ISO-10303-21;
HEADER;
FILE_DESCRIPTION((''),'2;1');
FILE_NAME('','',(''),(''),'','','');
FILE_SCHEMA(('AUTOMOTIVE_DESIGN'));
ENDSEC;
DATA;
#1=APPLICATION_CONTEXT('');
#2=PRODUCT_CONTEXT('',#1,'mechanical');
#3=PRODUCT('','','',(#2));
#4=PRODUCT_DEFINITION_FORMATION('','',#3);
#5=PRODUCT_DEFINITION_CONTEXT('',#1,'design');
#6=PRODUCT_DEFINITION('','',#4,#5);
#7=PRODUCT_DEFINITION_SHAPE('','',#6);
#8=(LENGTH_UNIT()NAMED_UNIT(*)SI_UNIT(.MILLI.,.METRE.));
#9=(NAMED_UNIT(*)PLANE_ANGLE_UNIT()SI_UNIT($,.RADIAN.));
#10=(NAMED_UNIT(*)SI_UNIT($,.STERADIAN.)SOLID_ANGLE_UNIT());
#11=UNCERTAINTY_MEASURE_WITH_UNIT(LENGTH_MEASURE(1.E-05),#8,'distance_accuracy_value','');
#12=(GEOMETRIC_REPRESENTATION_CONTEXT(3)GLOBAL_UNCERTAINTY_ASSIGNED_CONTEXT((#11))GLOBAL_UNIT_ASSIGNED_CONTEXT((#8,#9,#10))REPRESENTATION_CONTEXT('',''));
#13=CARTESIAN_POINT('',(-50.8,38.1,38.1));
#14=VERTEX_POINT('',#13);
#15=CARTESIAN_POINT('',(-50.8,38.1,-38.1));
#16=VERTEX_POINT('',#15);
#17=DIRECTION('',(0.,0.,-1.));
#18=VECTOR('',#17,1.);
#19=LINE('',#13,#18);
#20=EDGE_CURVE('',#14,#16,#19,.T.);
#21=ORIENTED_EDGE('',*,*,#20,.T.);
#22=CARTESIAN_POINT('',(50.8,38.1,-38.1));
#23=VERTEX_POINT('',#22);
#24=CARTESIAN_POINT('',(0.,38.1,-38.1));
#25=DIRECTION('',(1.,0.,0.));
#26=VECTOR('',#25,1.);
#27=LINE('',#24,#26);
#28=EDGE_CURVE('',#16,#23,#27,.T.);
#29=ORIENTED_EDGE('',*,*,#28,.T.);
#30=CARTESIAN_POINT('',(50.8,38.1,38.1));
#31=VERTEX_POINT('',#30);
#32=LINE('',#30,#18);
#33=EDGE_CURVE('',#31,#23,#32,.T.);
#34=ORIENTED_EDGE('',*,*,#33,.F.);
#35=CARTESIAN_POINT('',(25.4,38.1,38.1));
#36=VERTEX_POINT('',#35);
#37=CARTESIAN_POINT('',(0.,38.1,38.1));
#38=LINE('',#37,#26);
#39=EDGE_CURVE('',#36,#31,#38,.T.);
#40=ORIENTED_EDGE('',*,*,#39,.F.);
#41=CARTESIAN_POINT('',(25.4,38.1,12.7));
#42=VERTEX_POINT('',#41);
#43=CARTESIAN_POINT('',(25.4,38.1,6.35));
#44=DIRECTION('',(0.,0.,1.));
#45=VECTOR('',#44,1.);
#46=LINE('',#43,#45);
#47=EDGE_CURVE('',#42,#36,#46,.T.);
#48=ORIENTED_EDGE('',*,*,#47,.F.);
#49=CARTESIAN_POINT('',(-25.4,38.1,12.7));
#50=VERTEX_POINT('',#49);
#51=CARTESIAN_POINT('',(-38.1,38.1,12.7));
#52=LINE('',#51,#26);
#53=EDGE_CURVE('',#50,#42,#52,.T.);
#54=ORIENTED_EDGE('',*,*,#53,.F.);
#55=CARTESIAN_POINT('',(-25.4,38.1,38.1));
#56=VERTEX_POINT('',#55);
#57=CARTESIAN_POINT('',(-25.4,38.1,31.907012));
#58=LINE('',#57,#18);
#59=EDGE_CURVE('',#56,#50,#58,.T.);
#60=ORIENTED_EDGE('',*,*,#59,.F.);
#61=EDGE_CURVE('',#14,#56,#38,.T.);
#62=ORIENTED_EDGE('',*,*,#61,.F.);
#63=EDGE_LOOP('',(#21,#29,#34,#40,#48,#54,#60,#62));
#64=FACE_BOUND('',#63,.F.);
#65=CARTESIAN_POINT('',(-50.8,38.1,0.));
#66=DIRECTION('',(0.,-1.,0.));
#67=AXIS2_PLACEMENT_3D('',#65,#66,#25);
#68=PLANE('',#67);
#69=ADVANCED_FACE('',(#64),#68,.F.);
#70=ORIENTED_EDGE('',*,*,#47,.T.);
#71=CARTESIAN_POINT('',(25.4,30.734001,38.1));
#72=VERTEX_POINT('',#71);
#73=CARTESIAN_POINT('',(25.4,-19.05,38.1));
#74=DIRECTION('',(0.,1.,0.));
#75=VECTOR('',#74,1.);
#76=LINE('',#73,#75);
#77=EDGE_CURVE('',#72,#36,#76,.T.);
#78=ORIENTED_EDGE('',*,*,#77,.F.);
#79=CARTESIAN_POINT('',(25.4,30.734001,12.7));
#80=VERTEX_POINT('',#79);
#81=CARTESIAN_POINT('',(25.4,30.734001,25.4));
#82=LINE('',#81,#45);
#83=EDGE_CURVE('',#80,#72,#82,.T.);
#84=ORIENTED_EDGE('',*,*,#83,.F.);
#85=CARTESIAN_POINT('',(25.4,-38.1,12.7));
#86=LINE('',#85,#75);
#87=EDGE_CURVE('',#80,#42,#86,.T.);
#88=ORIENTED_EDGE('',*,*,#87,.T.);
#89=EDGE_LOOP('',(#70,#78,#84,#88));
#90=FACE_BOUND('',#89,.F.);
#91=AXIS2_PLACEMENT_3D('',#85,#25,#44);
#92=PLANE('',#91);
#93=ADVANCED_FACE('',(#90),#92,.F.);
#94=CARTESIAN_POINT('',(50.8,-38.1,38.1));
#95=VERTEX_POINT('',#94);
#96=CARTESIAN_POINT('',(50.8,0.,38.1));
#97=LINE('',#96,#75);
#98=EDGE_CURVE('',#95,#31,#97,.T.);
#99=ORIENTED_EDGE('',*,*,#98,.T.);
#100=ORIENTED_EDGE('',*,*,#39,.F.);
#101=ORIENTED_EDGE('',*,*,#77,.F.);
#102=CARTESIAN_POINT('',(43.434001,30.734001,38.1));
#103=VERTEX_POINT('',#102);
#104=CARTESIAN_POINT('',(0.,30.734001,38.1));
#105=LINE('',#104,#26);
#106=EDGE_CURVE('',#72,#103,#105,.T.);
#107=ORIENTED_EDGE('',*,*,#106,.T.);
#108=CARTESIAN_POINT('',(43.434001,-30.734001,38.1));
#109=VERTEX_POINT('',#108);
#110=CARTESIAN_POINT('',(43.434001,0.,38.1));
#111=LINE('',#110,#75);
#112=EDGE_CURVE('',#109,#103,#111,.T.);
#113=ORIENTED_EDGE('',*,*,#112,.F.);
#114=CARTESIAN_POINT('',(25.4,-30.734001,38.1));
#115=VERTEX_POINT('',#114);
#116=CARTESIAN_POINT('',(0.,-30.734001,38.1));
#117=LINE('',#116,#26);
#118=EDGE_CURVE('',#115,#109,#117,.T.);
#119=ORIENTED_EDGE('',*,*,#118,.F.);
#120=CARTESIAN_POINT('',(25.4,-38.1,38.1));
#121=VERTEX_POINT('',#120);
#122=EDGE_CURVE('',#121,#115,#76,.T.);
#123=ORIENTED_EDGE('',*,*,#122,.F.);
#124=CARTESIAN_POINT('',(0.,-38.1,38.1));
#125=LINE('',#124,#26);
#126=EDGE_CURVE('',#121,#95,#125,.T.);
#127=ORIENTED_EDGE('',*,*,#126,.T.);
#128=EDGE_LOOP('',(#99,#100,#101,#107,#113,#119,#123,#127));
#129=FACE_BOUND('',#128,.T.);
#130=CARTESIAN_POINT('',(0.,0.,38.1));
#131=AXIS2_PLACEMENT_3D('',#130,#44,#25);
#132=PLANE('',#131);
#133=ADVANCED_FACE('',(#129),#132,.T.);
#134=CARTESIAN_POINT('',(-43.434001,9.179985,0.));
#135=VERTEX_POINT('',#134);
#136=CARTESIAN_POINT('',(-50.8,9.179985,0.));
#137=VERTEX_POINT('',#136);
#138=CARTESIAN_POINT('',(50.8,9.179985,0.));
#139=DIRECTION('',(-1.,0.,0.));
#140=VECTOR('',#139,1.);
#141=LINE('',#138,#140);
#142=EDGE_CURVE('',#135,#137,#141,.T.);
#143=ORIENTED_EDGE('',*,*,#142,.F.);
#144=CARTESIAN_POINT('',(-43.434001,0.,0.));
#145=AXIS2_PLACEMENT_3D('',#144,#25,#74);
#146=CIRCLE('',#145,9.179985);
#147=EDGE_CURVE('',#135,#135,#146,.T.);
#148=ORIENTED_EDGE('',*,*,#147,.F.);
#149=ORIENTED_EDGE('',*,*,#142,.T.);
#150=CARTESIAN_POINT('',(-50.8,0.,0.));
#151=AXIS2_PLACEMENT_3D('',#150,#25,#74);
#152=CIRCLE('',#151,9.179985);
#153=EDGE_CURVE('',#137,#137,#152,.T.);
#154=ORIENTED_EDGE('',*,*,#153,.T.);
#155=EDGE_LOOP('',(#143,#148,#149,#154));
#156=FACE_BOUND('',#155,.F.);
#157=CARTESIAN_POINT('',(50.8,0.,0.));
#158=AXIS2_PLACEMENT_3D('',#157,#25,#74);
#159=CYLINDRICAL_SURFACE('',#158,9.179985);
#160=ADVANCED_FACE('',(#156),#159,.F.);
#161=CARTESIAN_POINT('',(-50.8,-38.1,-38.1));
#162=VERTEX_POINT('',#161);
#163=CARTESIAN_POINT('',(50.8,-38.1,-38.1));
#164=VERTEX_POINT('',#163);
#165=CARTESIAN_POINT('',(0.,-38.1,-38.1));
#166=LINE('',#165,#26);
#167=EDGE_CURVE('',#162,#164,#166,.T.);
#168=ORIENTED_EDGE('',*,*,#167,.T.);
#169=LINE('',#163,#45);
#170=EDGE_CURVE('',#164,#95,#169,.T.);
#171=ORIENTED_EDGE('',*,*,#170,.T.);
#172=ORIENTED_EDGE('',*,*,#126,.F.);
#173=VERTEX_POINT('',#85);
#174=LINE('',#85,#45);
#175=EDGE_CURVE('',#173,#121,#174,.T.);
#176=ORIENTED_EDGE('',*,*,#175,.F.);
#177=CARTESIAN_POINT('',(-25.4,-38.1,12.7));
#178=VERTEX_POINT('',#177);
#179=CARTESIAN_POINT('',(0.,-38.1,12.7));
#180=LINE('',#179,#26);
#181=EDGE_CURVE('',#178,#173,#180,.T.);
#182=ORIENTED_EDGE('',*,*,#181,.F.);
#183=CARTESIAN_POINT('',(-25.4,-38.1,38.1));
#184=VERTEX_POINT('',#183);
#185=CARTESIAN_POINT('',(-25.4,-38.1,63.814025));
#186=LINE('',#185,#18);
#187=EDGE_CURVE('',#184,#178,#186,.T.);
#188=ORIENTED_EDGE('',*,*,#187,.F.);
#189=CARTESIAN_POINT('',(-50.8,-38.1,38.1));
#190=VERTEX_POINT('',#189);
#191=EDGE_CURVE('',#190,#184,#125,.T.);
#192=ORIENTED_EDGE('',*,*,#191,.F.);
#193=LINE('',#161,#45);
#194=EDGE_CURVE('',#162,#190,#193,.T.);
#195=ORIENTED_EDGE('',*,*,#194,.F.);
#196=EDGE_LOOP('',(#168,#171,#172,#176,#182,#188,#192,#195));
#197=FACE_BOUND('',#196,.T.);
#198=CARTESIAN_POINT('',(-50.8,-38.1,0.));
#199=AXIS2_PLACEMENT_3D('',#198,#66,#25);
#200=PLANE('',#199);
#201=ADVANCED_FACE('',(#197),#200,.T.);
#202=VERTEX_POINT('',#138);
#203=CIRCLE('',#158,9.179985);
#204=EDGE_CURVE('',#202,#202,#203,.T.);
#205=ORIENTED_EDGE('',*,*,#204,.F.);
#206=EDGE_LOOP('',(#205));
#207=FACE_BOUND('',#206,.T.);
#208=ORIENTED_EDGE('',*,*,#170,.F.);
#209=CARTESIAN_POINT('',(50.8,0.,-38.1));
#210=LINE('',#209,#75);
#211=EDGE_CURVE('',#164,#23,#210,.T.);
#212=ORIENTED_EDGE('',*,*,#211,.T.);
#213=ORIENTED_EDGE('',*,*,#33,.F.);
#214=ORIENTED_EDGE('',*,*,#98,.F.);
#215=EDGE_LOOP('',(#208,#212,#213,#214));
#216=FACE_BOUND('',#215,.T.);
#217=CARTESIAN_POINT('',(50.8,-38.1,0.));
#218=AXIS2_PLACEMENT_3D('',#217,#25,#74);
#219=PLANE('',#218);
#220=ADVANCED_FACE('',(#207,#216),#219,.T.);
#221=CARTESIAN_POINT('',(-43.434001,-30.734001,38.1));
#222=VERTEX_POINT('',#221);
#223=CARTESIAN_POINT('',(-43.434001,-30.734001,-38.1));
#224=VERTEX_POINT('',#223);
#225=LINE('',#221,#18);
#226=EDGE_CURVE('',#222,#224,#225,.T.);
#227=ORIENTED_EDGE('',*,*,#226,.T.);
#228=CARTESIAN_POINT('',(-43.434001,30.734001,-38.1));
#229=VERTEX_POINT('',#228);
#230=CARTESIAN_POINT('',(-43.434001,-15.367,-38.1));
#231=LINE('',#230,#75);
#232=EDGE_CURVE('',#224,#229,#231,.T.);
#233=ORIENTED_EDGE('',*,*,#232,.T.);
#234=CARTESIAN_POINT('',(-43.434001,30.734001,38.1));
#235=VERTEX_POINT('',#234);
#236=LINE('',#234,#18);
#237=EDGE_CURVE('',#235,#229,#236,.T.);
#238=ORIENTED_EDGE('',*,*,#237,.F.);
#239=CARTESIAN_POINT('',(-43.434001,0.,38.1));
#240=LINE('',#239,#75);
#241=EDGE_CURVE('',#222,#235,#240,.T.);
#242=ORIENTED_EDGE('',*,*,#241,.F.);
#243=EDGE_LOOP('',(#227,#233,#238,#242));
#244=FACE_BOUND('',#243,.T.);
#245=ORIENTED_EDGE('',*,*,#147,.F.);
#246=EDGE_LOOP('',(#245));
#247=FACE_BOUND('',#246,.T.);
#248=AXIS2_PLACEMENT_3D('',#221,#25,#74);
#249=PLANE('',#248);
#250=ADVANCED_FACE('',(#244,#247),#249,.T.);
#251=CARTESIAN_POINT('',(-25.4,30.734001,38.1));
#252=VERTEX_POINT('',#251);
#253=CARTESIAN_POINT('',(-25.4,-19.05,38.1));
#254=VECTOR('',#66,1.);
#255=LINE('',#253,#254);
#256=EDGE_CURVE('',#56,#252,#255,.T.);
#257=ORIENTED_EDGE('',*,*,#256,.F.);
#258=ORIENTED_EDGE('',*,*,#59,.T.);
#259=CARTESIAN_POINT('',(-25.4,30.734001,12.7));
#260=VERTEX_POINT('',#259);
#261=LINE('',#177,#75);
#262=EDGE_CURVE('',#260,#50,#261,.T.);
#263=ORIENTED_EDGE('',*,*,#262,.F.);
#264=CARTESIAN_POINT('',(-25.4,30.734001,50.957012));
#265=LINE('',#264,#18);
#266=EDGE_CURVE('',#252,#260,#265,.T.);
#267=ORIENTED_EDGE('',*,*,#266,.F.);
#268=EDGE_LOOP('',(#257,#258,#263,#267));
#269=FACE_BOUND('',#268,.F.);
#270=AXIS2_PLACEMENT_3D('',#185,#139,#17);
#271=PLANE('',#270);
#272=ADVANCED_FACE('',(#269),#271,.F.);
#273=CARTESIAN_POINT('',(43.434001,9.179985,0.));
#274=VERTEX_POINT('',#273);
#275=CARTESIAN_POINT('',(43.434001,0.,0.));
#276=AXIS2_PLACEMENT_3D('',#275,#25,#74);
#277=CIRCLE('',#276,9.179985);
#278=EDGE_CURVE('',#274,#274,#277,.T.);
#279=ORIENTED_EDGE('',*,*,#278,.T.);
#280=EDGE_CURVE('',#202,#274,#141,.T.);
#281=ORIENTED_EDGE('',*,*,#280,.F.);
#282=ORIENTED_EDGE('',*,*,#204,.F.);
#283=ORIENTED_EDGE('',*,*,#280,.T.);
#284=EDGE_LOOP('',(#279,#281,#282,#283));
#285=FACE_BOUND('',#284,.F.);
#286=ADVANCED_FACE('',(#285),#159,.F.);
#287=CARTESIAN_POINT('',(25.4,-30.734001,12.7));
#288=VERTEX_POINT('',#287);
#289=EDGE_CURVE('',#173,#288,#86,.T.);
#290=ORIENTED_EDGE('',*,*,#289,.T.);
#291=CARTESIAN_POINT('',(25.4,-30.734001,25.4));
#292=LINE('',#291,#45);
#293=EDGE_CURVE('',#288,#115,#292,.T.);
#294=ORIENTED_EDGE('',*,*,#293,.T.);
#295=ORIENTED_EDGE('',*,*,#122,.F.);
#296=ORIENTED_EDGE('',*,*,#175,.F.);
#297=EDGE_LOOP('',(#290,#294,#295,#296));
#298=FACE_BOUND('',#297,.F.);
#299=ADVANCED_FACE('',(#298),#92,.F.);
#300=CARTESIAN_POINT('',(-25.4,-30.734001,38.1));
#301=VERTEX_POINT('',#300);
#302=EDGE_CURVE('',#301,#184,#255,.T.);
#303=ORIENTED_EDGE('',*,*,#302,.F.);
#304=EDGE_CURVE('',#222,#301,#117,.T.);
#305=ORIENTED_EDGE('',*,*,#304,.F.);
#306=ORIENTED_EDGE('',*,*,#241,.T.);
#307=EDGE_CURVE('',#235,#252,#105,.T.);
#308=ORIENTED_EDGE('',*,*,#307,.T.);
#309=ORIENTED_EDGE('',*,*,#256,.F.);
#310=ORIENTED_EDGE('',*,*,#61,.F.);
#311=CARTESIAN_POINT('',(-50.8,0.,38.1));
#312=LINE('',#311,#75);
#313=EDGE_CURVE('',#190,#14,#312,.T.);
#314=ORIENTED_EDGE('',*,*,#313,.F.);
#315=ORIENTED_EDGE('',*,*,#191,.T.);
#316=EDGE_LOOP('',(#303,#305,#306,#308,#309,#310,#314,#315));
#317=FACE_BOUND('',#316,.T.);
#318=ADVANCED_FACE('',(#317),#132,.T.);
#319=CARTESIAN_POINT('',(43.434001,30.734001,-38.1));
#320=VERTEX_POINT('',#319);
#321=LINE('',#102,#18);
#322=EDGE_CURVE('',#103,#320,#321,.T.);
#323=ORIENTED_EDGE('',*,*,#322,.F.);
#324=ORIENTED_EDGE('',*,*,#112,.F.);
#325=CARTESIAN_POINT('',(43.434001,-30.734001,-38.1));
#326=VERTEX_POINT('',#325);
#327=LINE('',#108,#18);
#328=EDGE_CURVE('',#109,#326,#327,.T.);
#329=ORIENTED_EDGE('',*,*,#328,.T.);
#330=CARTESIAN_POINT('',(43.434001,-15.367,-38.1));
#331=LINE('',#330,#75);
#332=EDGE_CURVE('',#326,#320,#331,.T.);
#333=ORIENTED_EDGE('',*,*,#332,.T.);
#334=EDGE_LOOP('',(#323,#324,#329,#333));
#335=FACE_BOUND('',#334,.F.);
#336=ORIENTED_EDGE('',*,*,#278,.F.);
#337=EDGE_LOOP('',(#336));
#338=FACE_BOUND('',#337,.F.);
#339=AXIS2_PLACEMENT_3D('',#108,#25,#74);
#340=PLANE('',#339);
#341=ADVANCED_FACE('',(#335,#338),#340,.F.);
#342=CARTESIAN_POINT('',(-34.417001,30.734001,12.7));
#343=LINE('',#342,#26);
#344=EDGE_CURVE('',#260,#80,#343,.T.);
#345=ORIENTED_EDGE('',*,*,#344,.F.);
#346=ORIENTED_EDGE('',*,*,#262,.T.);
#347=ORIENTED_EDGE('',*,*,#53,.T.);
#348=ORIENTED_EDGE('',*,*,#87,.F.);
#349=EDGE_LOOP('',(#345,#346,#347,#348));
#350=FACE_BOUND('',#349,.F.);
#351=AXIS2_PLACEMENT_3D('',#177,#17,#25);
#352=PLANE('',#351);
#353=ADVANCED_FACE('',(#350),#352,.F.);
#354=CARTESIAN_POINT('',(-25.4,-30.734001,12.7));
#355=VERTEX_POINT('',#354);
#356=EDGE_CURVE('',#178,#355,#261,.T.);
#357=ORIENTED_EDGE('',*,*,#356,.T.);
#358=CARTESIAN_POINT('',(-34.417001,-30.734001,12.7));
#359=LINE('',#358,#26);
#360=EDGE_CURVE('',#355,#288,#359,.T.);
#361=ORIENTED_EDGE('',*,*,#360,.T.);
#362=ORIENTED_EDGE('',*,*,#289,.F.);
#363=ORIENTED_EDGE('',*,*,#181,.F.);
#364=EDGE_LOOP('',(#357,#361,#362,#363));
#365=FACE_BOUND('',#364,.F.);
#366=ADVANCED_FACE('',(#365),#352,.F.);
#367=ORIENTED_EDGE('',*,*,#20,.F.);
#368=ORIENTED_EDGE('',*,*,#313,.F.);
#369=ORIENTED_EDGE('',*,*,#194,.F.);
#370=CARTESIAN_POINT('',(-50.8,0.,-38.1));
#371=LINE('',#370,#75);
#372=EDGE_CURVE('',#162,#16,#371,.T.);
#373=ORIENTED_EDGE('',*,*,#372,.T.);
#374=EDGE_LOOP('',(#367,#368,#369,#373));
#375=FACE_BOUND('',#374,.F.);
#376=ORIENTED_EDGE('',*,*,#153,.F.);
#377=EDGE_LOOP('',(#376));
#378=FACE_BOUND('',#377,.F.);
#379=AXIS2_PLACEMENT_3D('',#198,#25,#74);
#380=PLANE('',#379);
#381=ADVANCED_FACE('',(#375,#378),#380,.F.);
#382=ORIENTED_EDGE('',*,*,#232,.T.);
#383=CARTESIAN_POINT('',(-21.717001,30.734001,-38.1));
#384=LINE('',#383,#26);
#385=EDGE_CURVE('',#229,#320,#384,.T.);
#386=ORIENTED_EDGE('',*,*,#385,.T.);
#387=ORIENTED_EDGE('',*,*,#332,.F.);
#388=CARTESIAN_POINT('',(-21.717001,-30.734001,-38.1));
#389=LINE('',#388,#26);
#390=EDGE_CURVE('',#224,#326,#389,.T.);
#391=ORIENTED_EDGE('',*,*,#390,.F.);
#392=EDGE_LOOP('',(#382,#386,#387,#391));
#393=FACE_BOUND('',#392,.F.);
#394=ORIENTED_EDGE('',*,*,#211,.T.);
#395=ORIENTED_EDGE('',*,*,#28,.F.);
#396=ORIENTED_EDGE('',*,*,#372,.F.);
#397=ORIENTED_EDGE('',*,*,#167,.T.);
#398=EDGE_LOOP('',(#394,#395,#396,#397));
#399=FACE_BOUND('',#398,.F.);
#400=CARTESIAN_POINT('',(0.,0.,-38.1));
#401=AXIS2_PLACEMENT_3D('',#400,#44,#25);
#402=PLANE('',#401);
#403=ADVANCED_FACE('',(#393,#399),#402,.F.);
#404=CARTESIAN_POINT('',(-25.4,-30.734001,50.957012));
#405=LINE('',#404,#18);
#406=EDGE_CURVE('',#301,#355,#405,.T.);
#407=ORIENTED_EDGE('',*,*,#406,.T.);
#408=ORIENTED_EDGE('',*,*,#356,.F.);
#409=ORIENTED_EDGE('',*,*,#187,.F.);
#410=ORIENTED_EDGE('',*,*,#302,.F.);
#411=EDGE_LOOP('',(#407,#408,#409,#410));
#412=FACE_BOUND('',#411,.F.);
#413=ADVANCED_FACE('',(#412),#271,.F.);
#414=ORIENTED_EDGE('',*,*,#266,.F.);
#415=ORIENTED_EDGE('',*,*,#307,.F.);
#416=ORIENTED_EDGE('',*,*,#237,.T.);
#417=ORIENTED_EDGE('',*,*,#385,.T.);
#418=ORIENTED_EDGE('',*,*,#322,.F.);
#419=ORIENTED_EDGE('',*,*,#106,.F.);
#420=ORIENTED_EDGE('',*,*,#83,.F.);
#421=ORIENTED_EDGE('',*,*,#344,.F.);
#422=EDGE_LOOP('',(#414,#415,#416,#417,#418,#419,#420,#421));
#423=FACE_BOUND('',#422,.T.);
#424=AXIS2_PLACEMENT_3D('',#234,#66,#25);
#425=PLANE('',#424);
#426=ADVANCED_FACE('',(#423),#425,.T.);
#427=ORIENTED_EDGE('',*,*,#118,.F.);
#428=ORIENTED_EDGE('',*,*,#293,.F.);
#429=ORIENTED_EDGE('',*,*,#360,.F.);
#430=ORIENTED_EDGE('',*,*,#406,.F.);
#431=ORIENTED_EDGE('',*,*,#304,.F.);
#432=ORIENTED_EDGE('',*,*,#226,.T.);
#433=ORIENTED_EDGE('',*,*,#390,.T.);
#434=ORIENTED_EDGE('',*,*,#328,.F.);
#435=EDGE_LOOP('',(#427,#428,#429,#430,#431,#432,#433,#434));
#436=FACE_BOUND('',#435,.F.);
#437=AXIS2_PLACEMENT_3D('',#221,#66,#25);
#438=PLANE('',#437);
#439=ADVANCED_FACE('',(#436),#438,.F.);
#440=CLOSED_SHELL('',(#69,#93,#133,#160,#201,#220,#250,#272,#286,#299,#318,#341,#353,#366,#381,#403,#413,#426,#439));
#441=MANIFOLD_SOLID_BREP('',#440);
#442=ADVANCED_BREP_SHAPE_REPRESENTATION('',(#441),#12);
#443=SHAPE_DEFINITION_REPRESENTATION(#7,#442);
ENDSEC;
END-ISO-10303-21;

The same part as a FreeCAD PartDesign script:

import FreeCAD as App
import Part
import Sketcher

V = App.Vector
Q = App.Units.Quantity


def add_polygon(sketch, points):
    """Adds a closed chain of lines whose ends are joined by coincident constraints."""
    first, n = sketch.GeometryCount, len(points)
    for a, b in zip(points, points[1:] + points[:1]):
        sketch.addGeometry(Part.LineSegment(App.Vector(*a, 0), App.Vector(*b, 0)), False)
    for i in range(n):
        sketch.addConstraint(Sketcher.Constraint("Coincident", first + i, 2, first + (i + 1) % n, 1))

doc = App.newDocument("Part")
params = doc.addObject("Spreadsheet::Sheet", "Params")
for row, (alias, value) in enumerate([
    ("sketch1_width", "4 in"),
    ("sketch1_height", "3 in"),
    ("pad1_length", "3 in"),
    ("sketch2_width", "3.4200001 in"),
    ("sketch2_height", "2.4200001 in"),
    ("sketch3_width", "2 in"),
], start=1):
    params.set(f"A{row}", alias)
    params.set(f"B{row}", "=" + value)
    params.setAlias(f"B{row}", alias)

body = doc.addObject("PartDesign::Body", "Body")

sketch1 = body.newObject("Sketcher::SketchObject", "Sketch")
sketch1.AttachmentSupport = (doc.getObject("XY_Plane"), [""])
sketch1.MapMode = "FlatFace"
add_polygon(sketch1, [(-51, 38), (-51, -38), (51, -38), (51, 38)])
sketch1.addConstraint(Sketcher.Constraint("Vertical", 0))
sketch1.addConstraint(Sketcher.Constraint("Horizontal", 1))
sketch1.addConstraint(Sketcher.Constraint("Vertical", 2))
sketch1.addConstraint(Sketcher.Constraint("Horizontal", 3))
sketch1.addConstraint(Sketcher.Constraint("Symmetric", 0, 2, 2, 2, -1, 1))
sketch1.addConstraint(Sketcher.Constraint("DistanceX", 1, 1, 1, 2, Q("4 in")))
sketch1.addConstraint(Sketcher.Constraint("DistanceY", 0, 2, 0, 1, Q("3 in")))
sketch1.setExpression("Constraints[9]", "Params.sketch1_width")
sketch1.setExpression("Constraints[10]", "Params.sketch1_height")
pad1 = body.newObject("PartDesign::Pad", "Pad")
pad1.Profile = sketch1
pad1.setExpression("Length", "Params.pad1_length")
pad1.Midplane = True

sketch2 = body.newObject("Sketcher::SketchObject", "Sketch001")
sketch2.AttachmentSupport = (doc.getObject("XY_Plane"), [""])
sketch2.MapMode = "FlatFace"
sketch2.AttachmentOffset = App.Placement(V(0, 0, 1.5 * 25.4), App.Rotation())
add_polygon(sketch2, [(-43, 31), (-43, -31), (43, -31), (43, 31)])
sketch2.addConstraint(Sketcher.Constraint("Vertical", 0))
sketch2.addConstraint(Sketcher.Constraint("Horizontal", 1))
sketch2.addConstraint(Sketcher.Constraint("Vertical", 2))
sketch2.addConstraint(Sketcher.Constraint("Horizontal", 3))
sketch2.addConstraint(Sketcher.Constraint("Symmetric", 0, 2, 2, 2, -1, 1))
sketch2.addConstraint(Sketcher.Constraint("DistanceX", 1, 1, 1, 2, Q("3.4200001 in")))
sketch2.addConstraint(Sketcher.Constraint("DistanceY", 0, 2, 0, 1, Q("2.4200001 in")))
sketch2.setExpression("Constraints[9]", "Params.sketch2_width")
sketch2.setExpression("Constraints[10]", "Params.sketch2_height")
pocket1 = body.newObject("PartDesign::Pocket", "Pocket")
pocket1.Profile = sketch2
pocket1.Type = "ThroughAll"

sketch3 = body.newObject("Sketcher::SketchObject", "Sketch002")
sketch3.AttachmentSupport = (doc.getObject("XZ_Plane"), [""])
sketch3.MapMode = "FlatFace"
sketch3.AttachmentOffset = App.Placement(V(0, 0, 1.5 * 25.4), App.Rotation())
add_polygon(sketch3, [(-25, 13), (25, 13), (25, 64), (-25, 64)])
sketch3.addConstraint(Sketcher.Constraint("Horizontal", 0))
sketch3.addConstraint(Sketcher.Constraint("Vertical", 1))
sketch3.addConstraint(Sketcher.Constraint("Horizontal", 2))
sketch3.addConstraint(Sketcher.Constraint("Vertical", 3))
sketch3.addConstraint(Sketcher.Constraint("DistanceX", 0, 1, 0, 2, Q("2 in")))
sketch3.addConstraint(Sketcher.Constraint("DistanceX", -1, 1, 0, 2, Q("1 in")))
sketch3.addConstraint(Sketcher.Constraint("DistanceY", -1, 1, 0, 2, Q("0.5 in")))
sketch3.addConstraint(Sketcher.Constraint("DistanceY", 1, 1, 1, 2, Q("51.114024 mm")))
sketch3.setExpression("Constraints[8]", "Params.sketch3_width")
pocket2 = body.newObject("PartDesign::Pocket", "Pocket001")
pocket2.Profile = sketch3
pocket2.Type = "ThroughAll"

sketch4 = body.newObject("Sketcher::SketchObject", "Sketch003")
sketch4.AttachmentSupport = (doc.getObject("YZ_Plane"), [""])
sketch4.MapMode = "FlatFace"
sketch4.AttachmentOffset = App.Placement(V(0, 0, 2 * 25.4), App.Rotation())
sketch4.addGeometry(Part.Circle(V(0, 0, 0), V(0, 0, 1), 9), False)
sketch4.addConstraint(Sketcher.Constraint("Coincident", 0, 3, -1, 1))
sketch4.addConstraint(Sketcher.Constraint("Diameter", 0, Q("18.35997 mm")))
pocket3 = body.newObject("PartDesign::Pocket", "Pocket002")
pocket3.Profile = sketch4
pocket3.Type = "ThroughAll"

doc.recompute()
